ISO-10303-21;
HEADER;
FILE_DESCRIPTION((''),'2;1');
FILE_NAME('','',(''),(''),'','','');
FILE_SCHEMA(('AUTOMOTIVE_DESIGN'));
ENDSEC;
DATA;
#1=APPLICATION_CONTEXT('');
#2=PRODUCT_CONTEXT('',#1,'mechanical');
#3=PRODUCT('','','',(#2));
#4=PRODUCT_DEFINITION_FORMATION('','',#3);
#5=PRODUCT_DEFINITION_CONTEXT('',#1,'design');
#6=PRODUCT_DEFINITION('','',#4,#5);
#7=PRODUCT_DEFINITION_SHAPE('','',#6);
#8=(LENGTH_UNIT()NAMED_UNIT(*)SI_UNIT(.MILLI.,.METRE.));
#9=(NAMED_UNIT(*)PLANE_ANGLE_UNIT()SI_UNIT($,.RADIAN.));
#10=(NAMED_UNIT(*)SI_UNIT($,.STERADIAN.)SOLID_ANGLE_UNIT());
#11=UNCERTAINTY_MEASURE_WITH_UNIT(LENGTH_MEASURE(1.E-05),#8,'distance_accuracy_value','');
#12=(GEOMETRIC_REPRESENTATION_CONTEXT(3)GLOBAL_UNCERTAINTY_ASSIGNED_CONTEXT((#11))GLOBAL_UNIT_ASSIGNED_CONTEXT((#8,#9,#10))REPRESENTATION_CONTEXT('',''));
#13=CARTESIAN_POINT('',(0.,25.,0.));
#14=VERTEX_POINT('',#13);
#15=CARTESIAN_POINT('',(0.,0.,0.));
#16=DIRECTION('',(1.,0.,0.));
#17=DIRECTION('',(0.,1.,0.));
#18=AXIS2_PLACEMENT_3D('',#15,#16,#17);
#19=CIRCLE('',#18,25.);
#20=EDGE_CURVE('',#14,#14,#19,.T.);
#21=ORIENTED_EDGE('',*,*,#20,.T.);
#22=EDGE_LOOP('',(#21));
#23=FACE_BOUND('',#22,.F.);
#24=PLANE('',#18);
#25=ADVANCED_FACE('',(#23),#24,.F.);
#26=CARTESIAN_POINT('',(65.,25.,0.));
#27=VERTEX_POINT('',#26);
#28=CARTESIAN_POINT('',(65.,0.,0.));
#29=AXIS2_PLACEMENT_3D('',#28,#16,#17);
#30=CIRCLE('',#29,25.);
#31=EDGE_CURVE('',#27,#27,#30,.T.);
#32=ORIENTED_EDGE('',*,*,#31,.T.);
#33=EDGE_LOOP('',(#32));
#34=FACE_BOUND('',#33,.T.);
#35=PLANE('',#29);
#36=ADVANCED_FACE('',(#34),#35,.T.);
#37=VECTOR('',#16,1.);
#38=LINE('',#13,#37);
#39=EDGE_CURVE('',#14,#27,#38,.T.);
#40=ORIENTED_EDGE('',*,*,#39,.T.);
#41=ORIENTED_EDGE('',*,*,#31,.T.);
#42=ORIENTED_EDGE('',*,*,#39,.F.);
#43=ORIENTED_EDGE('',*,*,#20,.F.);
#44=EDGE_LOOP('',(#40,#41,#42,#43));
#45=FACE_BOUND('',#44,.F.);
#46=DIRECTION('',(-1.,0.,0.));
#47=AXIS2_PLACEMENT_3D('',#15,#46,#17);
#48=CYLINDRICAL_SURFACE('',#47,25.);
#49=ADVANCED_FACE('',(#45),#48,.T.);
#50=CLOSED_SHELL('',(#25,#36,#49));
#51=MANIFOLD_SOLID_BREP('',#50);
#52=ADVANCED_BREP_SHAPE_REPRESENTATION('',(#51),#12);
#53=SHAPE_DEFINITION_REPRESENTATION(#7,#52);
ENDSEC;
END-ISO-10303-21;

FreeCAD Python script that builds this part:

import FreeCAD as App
import Part
import Sketcher
Q = App.Units.Quantity

doc = App.newDocument("Part")
body = doc.addObject("PartDesign::Body", "Body")

sketch1 = body.newObject("Sketcher::SketchObject", "Sketch")
sketch1.AttachmentSupport = (doc.getObject("YZ_Plane"), [""])
sketch1.MapMode = "FlatFace"
sketch1.addGeometry(Part.Circle(App.Vector(0, 0, 0), App.Vector(0, 0, 1), 25), False)
sketch1.addConstraint([
    Sketcher.Constraint("Coincident", 0, 3, -1, 1),
    Sketcher.Constraint("Diameter", 0, Q("50 mm")),
])
pad1 = body.newObject("PartDesign::Pad", "Pad")
pad1.Profile = sketch1
pad1.Length = 65

doc.recompute()
